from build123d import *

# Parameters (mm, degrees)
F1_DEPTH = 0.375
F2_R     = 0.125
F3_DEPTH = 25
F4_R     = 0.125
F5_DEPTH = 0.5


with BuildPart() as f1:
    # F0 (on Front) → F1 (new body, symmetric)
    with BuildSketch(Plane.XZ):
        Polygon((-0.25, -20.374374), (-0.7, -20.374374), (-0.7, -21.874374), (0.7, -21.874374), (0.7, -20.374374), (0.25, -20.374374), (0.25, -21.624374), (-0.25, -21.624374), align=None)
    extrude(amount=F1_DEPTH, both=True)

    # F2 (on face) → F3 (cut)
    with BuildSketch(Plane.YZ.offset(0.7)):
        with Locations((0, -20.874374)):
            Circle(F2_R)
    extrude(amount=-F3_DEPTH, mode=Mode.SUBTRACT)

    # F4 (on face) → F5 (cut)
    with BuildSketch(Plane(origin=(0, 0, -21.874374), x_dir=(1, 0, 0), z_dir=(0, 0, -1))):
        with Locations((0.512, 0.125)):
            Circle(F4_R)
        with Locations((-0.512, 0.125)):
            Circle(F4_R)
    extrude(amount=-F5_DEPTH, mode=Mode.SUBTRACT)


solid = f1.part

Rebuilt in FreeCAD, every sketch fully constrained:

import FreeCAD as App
import Part
import Sketcher

V = App.Vector

doc = App.newDocument("Part")
body = doc.addObject("PartDesign::Body", "Body")

# Sketch on XZ plane
sketch1 = body.newObject("Sketcher::SketchObject", "Sketch")
sketch1.AttachmentSupport = (doc.getObject("XZ_Plane"), [""])
sketch1.MapMode = "FlatFace"
sketch1.addGeometry([
    Part.LineSegment(V(-0.25, -20.374374, 0), V(-0.7, -20.374374, 0)),  # 0
    Part.LineSegment(V(-0.7, -20.374374, 0), V(-0.7, -21.874374, 0)),  # 1
    Part.LineSegment(V(-0.7, -21.874374, 0), V(0.7, -21.874374, 0)),  # 2
    Part.LineSegment(V(0.7, -21.874374, 0), V(0.7, -20.374374, 0)),  # 3
    Part.LineSegment(V(0.7, -20.374374, 0), V(0.25, -20.374374, 0)),  # 4
    Part.LineSegment(V(0.25, -20.374374, 0), V(0.25, -21.624374, 0)),  # 5
    Part.LineSegment(V(0.25, -21.624374, 0), V(-0.25, -21.624374, 0)),  # 6
    Part.LineSegment(V(-0.25, -21.624374, 0), V(-0.25, -20.374374, 0)),  # 7
], False)
sketch1.addConstraint([
    Sketcher.Constraint("Coincident", 0, 2, 1, 1),
    Sketcher.Constraint("Coincident", 1, 2, 2, 1),
    Sketcher.Constraint("Coincident", 2, 2, 3, 1),
    Sketcher.Constraint("Coincident", 3, 2, 4, 1),
    Sketcher.Constraint("Coincident", 4, 2, 5, 1),
    Sketcher.Constraint("Coincident", 5, 2, 6, 1),
    Sketcher.Constraint("Coincident", 6, 2, 7, 1),
    Sketcher.Constraint("Coincident", 7, 2, 0, 1),
    Sketcher.Constraint("Horizontal", 0),
    Sketcher.Constraint("Vertical", 1),
    Sketcher.Constraint("Horizontal", 2),
    Sketcher.Constraint("Vertical", 3),
    Sketcher.Constraint("Horizontal", 4),
    Sketcher.Constraint("Vertical", 5),
    Sketcher.Constraint("Horizontal", 6),
    Sketcher.Constraint("Vertical", 7),
    Sketcher.Constraint("Symmetric", 0, 2, 3, 2, -2),
    Sketcher.Constraint("Equal", 0, 4),
    Sketcher.Constraint("DistanceX", 2, 1, 2, 2, 1.4),
    Sketcher.Constraint("DistanceX", 6, 2, 6, 1, 0.5),
    Sketcher.Constraint("DistanceY", 1, 2, 1, 1, 1.5),
    Sketcher.Constraint("DistanceY", 5, 2, 5, 1, 1.25),
    Sketcher.Constraint("DistanceY", 0, 2, -1, 1, 20.374374),
])
pad1 = body.newObject("PartDesign::Pad", "Pad")
pad1.Profile = sketch1
pad1.Length = 0.75
pad1.Midplane = True

# Sketch on YZ plane
sketch2 = body.newObject("Sketcher::SketchObject", "Sketch001")
sketch2.AttachmentSupport = (doc.getObject("YZ_Plane"), [""])
sketch2.MapMode = "FlatFace"
sketch2.AttachmentOffset = App.Placement(V(0, 0, 0.7), App.Rotation())
sketch2.addGeometry(Part.Circle(V(0, -20.874374, 0), V(0, 0, 1), 0.125), False)
sketch2.addConstraint([
    Sketcher.Constraint("PointOnObject", 0, 3, -2),
    Sketcher.Constraint("Diameter", 0, 0.25),
    Sketcher.Constraint("DistanceY", 0, 3, -1, 1, 20.874374),
])
pocket1 = body.newObject("PartDesign::Pocket", "Pocket")
pocket1.Profile = sketch2
pocket1.Length = 25

# Sketch on XY plane
sketch3 = body.newObject("Sketcher::SketchObject", "Sketch002")
sketch3.AttachmentSupport = (doc.getObject("XY_Plane"), [""])
sketch3.MapMode = "FlatFace"
sketch3.AttachmentOffset = App.Placement(V(0, 0, -21.874374), App.Rotation())
sketch3.addGeometry([
    Part.Circle(V(0.512, -0.125, 0), V(0, 0, 1), 0.125),
    Part.Circle(V(-0.512, -0.125, 0), V(0, 0, 1), 0.125),
], False)
sketch3.addConstraint([
    Sketcher.Constraint("Equal", 0, 1),
    Sketcher.Constraint("Symmetric", 0, 3, 1, 3, -2),
    Sketcher.Constraint("Diameter", 0, 0.25),
    Sketcher.Constraint("DistanceX", -1, 1, 0, 3, 0.512),
    Sketcher.Constraint("DistanceY", 0, 3, -1, 1, 0.125),
])
pocket2 = body.newObject("PartDesign::Pocket", "Pocket001")
pocket2.Profile = sketch3
pocket2.Length = 0.5
pocket2.Reversed = True

doc.recompute()
